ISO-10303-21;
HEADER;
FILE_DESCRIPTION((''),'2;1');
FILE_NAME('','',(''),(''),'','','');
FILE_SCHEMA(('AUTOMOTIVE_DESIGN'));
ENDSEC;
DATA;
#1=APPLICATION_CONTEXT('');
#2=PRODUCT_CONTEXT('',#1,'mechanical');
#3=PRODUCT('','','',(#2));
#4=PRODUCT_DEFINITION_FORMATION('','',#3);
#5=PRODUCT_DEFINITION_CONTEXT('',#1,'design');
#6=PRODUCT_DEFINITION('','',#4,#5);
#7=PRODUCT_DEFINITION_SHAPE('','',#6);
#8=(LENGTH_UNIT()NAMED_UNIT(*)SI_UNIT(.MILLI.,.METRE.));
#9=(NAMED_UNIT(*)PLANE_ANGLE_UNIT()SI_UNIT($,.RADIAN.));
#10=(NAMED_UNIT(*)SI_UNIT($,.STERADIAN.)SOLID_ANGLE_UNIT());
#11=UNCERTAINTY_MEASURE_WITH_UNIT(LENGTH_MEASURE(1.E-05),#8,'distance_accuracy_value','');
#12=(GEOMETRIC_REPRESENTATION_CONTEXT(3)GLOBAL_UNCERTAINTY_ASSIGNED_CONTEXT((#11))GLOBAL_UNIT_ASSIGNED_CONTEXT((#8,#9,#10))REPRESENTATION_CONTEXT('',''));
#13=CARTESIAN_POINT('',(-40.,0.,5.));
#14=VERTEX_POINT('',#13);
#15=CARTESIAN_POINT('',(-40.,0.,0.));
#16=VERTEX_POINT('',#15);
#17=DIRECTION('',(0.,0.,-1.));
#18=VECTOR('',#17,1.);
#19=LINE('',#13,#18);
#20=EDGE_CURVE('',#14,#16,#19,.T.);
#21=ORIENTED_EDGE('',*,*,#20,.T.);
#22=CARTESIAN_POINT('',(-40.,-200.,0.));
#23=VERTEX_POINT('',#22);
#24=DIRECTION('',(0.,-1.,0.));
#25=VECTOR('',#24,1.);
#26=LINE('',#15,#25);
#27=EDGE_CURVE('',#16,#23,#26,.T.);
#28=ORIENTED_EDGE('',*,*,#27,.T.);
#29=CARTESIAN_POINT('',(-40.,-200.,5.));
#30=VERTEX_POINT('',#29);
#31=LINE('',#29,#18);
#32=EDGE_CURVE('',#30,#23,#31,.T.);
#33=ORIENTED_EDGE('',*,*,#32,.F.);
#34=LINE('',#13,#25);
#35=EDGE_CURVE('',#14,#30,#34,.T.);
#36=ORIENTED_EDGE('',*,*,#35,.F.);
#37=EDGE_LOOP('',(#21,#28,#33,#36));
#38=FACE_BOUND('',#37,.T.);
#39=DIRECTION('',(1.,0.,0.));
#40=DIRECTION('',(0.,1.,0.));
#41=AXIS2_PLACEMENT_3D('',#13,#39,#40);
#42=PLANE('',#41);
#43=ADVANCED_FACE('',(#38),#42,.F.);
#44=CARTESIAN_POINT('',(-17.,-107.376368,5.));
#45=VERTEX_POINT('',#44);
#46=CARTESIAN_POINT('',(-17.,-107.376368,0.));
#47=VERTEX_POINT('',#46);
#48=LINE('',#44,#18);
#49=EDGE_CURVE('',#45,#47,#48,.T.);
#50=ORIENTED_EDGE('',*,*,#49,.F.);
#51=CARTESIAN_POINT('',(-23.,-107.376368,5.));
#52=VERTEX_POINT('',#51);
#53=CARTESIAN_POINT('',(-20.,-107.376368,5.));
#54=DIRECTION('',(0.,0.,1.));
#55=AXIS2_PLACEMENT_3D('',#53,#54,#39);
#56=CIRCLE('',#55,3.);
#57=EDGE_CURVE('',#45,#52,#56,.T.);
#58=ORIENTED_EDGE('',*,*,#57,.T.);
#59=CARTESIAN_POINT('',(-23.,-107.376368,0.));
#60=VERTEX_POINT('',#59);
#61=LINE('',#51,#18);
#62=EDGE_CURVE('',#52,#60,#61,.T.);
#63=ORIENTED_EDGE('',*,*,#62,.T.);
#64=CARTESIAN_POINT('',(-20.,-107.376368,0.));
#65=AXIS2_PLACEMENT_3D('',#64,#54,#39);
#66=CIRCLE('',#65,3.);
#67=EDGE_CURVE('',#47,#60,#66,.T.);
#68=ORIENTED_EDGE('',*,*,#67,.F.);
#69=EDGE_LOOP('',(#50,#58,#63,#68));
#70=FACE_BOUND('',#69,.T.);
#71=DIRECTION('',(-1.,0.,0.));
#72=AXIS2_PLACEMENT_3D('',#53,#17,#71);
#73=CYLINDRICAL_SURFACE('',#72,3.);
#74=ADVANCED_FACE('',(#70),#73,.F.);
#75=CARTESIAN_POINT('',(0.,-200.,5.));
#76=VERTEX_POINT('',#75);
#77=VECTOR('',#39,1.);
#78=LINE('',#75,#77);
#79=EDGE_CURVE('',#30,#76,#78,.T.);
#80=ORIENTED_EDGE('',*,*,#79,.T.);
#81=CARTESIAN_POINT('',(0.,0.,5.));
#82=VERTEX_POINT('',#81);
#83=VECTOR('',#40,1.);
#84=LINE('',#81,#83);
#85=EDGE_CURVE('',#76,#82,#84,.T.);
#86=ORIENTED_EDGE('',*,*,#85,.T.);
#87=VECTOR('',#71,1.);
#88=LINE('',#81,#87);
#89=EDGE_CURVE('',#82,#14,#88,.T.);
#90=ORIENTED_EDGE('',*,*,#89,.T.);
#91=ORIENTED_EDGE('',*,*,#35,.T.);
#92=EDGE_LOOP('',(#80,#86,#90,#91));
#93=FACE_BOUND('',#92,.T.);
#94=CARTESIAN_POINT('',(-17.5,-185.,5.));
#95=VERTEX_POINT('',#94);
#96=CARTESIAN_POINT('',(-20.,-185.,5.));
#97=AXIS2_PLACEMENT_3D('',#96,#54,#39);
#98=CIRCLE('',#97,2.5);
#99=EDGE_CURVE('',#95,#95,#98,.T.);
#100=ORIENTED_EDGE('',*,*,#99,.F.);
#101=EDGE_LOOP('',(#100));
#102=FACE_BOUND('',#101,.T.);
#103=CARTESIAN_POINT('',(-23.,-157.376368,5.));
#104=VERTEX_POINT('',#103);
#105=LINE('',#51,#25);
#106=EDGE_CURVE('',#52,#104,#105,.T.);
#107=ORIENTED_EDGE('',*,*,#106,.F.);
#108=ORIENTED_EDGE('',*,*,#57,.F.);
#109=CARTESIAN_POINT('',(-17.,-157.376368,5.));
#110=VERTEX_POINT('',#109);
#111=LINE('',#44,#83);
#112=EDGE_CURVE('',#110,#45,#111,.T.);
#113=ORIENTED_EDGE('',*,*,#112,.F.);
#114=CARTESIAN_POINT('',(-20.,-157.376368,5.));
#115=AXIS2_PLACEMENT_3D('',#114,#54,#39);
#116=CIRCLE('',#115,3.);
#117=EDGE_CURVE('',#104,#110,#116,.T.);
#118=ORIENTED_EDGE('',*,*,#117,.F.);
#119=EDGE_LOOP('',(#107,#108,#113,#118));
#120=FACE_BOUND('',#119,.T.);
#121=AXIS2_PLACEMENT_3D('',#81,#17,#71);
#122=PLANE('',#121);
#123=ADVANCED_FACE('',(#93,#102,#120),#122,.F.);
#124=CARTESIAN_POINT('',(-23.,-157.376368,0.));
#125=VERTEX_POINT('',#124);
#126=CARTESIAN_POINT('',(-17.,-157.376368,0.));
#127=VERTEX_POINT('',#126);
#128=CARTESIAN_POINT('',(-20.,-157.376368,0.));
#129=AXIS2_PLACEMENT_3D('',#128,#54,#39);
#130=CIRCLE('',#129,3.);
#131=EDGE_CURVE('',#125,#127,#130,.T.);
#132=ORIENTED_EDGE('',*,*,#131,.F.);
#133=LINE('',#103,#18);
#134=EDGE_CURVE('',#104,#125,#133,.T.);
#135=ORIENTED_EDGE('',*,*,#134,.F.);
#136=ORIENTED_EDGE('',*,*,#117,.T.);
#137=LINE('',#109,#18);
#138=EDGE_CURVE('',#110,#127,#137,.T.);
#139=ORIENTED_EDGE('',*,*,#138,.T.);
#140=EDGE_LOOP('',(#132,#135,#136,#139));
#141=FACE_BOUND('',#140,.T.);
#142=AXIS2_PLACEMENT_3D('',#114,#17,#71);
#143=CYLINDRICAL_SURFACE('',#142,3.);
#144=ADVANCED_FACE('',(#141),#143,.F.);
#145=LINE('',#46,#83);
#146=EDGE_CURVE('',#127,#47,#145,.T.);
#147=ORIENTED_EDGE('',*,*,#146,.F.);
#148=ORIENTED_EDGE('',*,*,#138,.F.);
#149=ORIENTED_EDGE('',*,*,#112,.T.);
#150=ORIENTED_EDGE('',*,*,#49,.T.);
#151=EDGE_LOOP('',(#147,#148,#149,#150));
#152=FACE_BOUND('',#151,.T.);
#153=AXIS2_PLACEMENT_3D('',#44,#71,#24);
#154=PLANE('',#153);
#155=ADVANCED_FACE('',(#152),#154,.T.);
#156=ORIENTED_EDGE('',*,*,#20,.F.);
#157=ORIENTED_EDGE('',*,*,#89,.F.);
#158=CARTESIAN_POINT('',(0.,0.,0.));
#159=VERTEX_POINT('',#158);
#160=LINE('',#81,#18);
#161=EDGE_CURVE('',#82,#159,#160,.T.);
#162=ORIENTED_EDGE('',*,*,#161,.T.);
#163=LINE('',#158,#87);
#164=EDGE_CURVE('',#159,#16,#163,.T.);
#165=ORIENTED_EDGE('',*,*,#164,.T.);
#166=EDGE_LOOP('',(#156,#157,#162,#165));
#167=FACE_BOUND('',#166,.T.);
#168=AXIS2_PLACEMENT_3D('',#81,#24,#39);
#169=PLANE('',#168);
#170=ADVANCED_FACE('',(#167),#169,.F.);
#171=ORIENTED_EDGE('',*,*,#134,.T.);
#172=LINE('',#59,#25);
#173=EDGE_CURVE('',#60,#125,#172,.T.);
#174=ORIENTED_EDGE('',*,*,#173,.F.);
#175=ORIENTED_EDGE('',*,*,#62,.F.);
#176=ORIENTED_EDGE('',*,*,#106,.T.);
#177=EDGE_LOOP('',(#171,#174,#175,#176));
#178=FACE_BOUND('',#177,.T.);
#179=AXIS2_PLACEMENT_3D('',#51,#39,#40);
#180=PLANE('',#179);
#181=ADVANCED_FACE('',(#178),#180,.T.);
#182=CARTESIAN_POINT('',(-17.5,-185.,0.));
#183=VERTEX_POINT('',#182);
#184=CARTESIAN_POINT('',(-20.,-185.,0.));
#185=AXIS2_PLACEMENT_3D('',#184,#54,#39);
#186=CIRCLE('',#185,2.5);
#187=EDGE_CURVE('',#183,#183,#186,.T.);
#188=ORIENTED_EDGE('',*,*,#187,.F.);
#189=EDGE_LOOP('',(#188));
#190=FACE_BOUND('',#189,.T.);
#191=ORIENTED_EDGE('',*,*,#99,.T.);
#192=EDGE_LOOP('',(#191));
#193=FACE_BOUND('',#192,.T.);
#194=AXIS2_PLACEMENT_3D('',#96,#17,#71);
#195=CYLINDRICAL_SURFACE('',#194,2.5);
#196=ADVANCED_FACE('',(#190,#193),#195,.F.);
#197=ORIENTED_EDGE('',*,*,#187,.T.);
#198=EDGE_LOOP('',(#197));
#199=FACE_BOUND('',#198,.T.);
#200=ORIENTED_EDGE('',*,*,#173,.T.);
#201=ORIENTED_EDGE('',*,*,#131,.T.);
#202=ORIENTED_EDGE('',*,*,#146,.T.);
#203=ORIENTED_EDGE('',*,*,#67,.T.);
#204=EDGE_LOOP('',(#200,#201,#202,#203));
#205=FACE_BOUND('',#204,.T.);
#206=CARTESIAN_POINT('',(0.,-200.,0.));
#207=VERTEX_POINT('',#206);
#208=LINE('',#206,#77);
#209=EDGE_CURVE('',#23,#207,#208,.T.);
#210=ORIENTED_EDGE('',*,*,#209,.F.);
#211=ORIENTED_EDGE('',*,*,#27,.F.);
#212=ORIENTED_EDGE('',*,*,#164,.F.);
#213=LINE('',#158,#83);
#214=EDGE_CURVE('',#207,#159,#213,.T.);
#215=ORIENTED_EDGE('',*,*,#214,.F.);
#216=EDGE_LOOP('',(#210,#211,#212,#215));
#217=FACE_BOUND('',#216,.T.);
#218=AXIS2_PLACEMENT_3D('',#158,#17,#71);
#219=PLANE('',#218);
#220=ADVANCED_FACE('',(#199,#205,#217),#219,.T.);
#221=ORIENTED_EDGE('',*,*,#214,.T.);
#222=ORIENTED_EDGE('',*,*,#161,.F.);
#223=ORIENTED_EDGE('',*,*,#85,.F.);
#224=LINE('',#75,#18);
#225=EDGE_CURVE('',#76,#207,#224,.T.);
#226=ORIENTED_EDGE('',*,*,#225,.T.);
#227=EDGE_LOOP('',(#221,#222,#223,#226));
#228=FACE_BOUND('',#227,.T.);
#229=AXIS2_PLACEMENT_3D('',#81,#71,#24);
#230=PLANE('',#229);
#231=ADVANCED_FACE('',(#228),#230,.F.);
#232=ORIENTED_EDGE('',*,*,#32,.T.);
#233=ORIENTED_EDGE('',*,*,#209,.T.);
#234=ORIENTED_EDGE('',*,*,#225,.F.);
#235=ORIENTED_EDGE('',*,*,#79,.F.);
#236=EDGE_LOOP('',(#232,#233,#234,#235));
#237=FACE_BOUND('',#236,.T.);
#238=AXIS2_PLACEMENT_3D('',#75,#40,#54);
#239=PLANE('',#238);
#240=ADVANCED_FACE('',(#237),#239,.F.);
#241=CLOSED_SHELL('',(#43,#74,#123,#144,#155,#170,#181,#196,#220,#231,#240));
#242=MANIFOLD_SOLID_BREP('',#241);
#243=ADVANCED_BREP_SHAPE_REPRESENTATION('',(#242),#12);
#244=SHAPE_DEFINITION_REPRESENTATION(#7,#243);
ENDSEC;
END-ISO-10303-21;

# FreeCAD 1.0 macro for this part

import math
import FreeCAD as App
import Part
import Sketcher
Q = App.Units.Quantity

doc = App.newDocument("Part")
params = doc.addObject("Spreadsheet::Sheet", "Params")
for row, (alias, value) in enumerate([
    ("sketch1_diameter", "5 mm"),
    ("sketch1_radius", "3 mm"),
    ("sketch1_width", "40 mm"),
    ("sketch1_height", "200 mm"),
    ("sketch1_height2", "50 mm"),
    ("pad1_length", "5 mm"),
], start=1):
    params.set(f"A{row}", alias)
    params.set(f"B{row}", "=" + value)
    params.setAlias(f"B{row}", alias)

body = doc.addObject("PartDesign::Body", "Body")

sketch1 = body.newObject("Sketcher::SketchObject", "Sketch")
sketch1.AttachmentSupport = (doc.getObject("XY_Plane"), [""])
sketch1.MapMode = "FlatFace"
sketch1.addGeometry([
    Part.LineSegment(App.Vector(-40, 0, 0), App.Vector(-40, -200, 0)),
    Part.LineSegment(App.Vector(-40, -200, 0), App.Vector(0, -200, 0)),
    Part.LineSegment(App.Vector(0, -200, 0), App.Vector(0, 0, 0)),
    Part.LineSegment(App.Vector(0, 0, 0), App.Vector(-40, 0, 0)),
    Part.Circle(App.Vector(-20, -185, 0), App.Vector(0, 0, 1), 2.5),
    Part.ArcOfCircle(Part.Circle(App.Vector(-20, -107.376368, 0), App.Vector(0, 0, 1), 3), math.radians(0), math.radians(180)),
    Part.LineSegment(App.Vector(-17, -107.376368, 0), App.Vector(-17, -157.376368, 0)),
    Part.ArcOfCircle(Part.Circle(App.Vector(-20, -157.376368, 0), App.Vector(0, 0, 1), 3), math.radians(180), math.radians(360)),
    Part.LineSegment(App.Vector(-23, -157.376368, 0), App.Vector(-23, -107.376368, 0)),
], False)
sketch1.addConstraint([
    Sketcher.Constraint("Coincident", 0, 2, 1, 1),
    Sketcher.Constraint("Coincident", 1, 2, 2, 1),
    Sketcher.Constraint("Coincident", 2, 2, 3, 1),
    Sketcher.Constraint("Coincident", 3, 2, 0, 1),
    Sketcher.Constraint("Tangent", 5, 1, 6, 1),
    Sketcher.Constraint("Tangent", 6, 2, 7, 2),
    Sketcher.Constraint("Tangent", 7, 1, 8, 1),
    Sketcher.Constraint("Tangent", 8, 2, 5, 2),
    Sketcher.Constraint("Vertical", 0),
    Sketcher.Constraint("Horizontal", 1),
    Sketcher.Constraint("Vertical", 2),
    Sketcher.Constraint("Horizontal", 3),
    Sketcher.Constraint("Vertical", 6),
    Sketcher.Constraint("Vertical", 8),
    Sketcher.Constraint("Coincident", 2, 2, -1, 1),
    Sketcher.Constraint("Vertical", 4, 3, 5, 3),
    Sketcher.Constraint("Diameter", 4, Q("5 mm")),
    Sketcher.Constraint("Radius", 5, Q("3 mm")),
    Sketcher.Constraint("DistanceX", 1, 1, 1, 2, Q("40 mm")),
    Sketcher.Constraint("DistanceY", 0, 2, 0, 1, Q("200 mm")),
    Sketcher.Constraint("DistanceY", 6, 2, 6, 1, Q("50 mm")),
    Sketcher.Constraint("DistanceX", 4, 3, -1, 1, Q("20 mm")),
    Sketcher.Constraint("DistanceY", 4, 3, -1, 1, Q("185 mm")),
    Sketcher.Constraint("DistanceY", 5, 3, -1, 1, Q("107.376368 mm")),
])
sketch1.setExpression("Constraints[16]", "Params.sketch1_diameter")
sketch1.setExpression("Constraints[17]", "Params.sketch1_radius")
sketch1.setExpression("Constraints[18]", "Params.sketch1_width")
sketch1.setExpression("Constraints[19]", "Params.sketch1_height")
sketch1.setExpression("Constraints[20]", "Params.sketch1_height2")
pad1 = body.newObject("PartDesign::Pad", "Pad")
pad1.Profile = sketch1
pad1.setExpression("Length", "Params.pad1_length")

doc.recompute()
